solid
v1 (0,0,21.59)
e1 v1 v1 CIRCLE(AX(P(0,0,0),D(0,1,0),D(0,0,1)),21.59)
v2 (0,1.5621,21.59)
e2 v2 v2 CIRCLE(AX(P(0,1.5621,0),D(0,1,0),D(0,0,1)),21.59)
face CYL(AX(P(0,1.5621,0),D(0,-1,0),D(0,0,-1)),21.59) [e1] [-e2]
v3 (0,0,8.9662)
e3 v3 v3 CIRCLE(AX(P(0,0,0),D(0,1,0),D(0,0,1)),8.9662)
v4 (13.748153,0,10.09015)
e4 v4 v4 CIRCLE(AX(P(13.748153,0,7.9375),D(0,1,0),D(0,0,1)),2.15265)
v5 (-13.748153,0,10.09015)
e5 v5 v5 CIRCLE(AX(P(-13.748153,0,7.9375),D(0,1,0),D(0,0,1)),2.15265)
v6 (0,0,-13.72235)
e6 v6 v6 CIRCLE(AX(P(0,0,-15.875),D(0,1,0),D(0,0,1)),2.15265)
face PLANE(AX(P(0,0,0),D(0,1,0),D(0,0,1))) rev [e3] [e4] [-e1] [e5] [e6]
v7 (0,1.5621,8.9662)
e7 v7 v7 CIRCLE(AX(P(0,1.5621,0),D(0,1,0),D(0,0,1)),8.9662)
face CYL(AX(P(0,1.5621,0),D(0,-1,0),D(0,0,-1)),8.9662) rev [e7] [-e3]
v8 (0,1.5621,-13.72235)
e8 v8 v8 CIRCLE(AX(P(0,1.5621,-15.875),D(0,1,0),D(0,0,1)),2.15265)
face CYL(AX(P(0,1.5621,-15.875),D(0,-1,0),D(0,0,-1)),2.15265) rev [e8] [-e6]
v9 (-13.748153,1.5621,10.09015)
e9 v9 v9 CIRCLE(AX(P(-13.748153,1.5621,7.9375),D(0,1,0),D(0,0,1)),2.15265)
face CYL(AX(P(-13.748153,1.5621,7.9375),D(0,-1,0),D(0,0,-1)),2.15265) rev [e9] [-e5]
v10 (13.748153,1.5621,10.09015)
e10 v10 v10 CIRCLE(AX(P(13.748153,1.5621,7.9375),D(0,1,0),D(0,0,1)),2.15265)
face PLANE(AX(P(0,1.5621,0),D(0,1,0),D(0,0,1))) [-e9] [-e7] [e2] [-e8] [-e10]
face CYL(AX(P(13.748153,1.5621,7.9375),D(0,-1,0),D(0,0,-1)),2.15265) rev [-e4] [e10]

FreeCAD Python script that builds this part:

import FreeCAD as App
import Part
import Sketcher

V = App.Vector
Q = App.Units.Quantity

doc = App.newDocument("Part")
body = doc.addObject("PartDesign::Body", "Body")

sketch1 = body.newObject("Sketcher::SketchObject", "Sketch")
sketch1.AttachmentSupport = (doc.getObject("XZ_Plane"), [""])
sketch1.MapMode = "FlatFace"
sketch1.addGeometry(Part.Circle(V(0, 0, 0), V(0, 0, 1), 21.6), False)
sketch1.addGeometry(Part.Circle(V(0, -15.9, 0), V(0, 0, 1), 2.2), False)
sketch1.addGeometry(Part.Circle(V(-13.7, 7.9, 0), V(0, 0, 1), 2.2), False)
sketch1.addGeometry(Part.Circle(V(0, 0, 0), V(0, 0, 1), 9), False)
sketch1.addGeometry(Part.Circle(V(13.7, 7.9, 0), V(0, 0, 1), 2.2), False)
sketch1.addConstraint(Sketcher.Constraint("Coincident", 0, 3, -1, 1))
sketch1.addConstraint(Sketcher.Constraint("Coincident", 3, 3, -1, 1))
sketch1.addConstraint(Sketcher.Constraint("Equal", 1, 2))
sketch1.addConstraint(Sketcher.Constraint("Equal", 2, 4))
sketch1.addConstraint(Sketcher.Constraint("Symmetric", 2, 3, 4, 3, -2))
sketch1.addConstraint(Sketcher.Constraint("PointOnObject", 1, 3, -2))
sketch1.addConstraint(Sketcher.Constraint("Diameter", 0, Q("1.7 in")))
sketch1.addConstraint(Sketcher.Constraint("Diameter", 3, Q("0.706 in")))
sketch1.addConstraint(Sketcher.Constraint("Diameter", 1, Q("0.1695 in")))
sketch1.addConstraint(Sketcher.Constraint("DistanceY", 1, 3, -1, 1, Q("0.625 in")))
sketch1.addConstraint(Sketcher.Constraint("DistanceY", -1, 1, 2, 3, Q("0.3125 in")))
sketch1.addConstraint(Sketcher.Constraint("DistanceX", 2, 3, -1, 1, Q("13.748153 mm")))
pad1 = body.newObject("PartDesign::Pad", "Pad")
pad1.Profile = sketch1
pad1.Length = Q("0.0615 in")
pad1.Reversed = True

doc.recompute()
